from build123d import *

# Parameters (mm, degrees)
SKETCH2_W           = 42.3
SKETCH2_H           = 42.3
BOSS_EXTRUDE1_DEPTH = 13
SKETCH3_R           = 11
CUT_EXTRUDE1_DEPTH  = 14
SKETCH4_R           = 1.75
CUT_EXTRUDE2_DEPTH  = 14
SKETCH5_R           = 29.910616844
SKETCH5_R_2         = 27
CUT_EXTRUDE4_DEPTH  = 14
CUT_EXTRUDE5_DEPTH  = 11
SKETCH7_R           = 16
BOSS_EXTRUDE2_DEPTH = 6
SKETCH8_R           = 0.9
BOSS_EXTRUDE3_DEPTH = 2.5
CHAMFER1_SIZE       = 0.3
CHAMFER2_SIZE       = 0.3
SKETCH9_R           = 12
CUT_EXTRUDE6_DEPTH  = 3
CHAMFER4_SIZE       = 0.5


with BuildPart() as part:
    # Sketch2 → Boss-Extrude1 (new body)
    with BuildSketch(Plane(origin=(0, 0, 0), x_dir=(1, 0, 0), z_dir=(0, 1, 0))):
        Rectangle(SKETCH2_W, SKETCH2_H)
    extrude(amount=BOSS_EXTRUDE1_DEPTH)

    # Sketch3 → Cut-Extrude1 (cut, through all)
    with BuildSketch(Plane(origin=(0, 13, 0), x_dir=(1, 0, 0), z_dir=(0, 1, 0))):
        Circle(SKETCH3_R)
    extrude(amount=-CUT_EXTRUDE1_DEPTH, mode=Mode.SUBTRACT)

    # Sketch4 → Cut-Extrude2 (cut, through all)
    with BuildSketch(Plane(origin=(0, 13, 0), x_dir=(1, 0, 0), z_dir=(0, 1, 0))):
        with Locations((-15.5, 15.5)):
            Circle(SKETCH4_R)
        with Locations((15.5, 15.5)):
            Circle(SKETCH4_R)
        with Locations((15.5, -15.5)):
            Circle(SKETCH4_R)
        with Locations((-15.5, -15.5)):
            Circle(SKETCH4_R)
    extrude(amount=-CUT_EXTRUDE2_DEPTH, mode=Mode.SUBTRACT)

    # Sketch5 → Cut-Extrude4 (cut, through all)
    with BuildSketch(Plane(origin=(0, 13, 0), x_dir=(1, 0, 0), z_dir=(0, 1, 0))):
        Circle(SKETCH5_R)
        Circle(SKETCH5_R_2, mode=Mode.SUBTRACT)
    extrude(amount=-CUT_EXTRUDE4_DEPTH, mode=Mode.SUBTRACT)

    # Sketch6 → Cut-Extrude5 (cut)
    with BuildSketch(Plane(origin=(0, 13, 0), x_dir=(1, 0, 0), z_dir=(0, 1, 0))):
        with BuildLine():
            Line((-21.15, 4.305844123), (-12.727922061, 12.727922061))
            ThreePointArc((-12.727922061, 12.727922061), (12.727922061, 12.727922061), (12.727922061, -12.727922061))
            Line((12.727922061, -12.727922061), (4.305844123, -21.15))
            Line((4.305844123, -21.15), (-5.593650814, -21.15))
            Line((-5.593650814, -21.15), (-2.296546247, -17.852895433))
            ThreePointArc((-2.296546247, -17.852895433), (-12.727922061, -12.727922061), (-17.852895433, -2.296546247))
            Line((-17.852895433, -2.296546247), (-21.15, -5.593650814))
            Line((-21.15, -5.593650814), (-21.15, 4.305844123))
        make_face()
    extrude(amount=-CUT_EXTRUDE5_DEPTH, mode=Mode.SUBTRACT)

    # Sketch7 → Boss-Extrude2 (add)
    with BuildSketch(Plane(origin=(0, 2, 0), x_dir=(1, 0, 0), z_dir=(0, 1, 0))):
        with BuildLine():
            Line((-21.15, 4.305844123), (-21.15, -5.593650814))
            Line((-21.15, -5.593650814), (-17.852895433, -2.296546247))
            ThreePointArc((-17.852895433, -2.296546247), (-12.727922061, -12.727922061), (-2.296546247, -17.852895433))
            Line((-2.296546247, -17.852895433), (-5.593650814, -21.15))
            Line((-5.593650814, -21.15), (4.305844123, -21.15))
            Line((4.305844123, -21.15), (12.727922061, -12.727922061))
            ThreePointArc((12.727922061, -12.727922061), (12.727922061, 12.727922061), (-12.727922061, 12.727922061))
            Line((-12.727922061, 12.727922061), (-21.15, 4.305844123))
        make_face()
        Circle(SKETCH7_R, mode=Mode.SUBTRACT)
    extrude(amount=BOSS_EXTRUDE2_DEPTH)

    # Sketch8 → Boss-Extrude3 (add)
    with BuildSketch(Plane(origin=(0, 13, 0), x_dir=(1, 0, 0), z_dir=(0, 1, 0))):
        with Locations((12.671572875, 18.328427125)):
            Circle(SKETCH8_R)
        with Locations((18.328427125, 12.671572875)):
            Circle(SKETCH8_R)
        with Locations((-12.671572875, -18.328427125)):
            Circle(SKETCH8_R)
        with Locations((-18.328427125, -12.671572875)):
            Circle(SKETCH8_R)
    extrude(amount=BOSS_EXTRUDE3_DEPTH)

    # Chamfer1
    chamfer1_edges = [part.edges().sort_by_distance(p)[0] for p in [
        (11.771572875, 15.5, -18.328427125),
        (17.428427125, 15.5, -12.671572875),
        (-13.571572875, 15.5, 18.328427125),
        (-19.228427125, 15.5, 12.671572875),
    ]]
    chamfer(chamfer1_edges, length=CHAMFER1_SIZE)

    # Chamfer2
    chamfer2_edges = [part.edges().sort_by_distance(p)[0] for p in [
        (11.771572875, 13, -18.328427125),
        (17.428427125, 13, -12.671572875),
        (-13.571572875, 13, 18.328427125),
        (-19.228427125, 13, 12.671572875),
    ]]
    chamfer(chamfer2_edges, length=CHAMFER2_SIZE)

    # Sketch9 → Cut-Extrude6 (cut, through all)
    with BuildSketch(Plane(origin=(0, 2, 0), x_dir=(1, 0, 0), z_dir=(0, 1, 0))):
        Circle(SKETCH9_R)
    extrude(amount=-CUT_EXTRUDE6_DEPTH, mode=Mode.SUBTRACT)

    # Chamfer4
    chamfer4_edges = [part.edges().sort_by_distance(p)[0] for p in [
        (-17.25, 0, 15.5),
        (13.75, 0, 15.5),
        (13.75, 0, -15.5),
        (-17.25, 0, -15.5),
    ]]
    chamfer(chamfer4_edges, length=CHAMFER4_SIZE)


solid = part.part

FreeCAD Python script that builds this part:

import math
import FreeCAD as App
import Part
import Sketcher

V = App.Vector
Q = App.Units.Quantity


def edges_at(feature, points):
    """Names of the edges that pass closest to the given points."""
    edges = feature.Shape.Edges
    near = lambda p: min(range(len(edges)), key=lambda i: edges[i].distToShape(Part.Vertex(*p))[0])
    return sorted({f"Edge{near(p) + 1}" for p in points})

doc = App.newDocument("Part")
body = doc.addObject("PartDesign::Body", "Body")

sketch1 = doc.addObject("Sketcher::SketchObject", "Sketch")
body.addObject(sketch1)
sketch1.AttachmentSupport = (doc.XZ_Plane, [""])
sketch1.MapMode = "FlatFace"
sketch1.addGeometry(Part.LineSegment(V(-21.15, -21.15, 0), V(-21.15, 21.15, 0)), False)
sketch1.addGeometry(Part.LineSegment(V(-21.15, 21.15, 0), V(21.15, 21.15, 0)), False)
sketch1.addGeometry(Part.LineSegment(V(21.15, 21.15, 0), V(21.15, -21.15, 0)), False)
sketch1.addGeometry(Part.LineSegment(V(21.15, -21.15, 0), V(-21.15, -21.15, 0)), False)
sketch1.addConstraint(Sketcher.Constraint("Coincident", 0, 2, 1, 1))
sketch1.addConstraint(Sketcher.Constraint("Coincident", 1, 2, 2, 1))
sketch1.addConstraint(Sketcher.Constraint("Coincident", 2, 2, 3, 1))
sketch1.addConstraint(Sketcher.Constraint("Coincident", 3, 2, 0, 1))
sketch1.addConstraint(Sketcher.Constraint("Vertical", 0))
sketch1.addConstraint(Sketcher.Constraint("Horizontal", 1))
sketch1.addConstraint(Sketcher.Constraint("Vertical", 2))
sketch1.addConstraint(Sketcher.Constraint("Horizontal", 3))
sketch1.addConstraint(Sketcher.Constraint("Symmetric", 0, 2, 2, 2, -1, 1))
sketch1.addConstraint(Sketcher.Constraint("Equal", 3, 0))
sketch1.addConstraint(Sketcher.Constraint("DistanceX", 1, 1, 1, 2, Q("42.3 mm")))
pad1 = doc.addObject("PartDesign::Pad", "Pad")
body.addObject(pad1)
pad1.Profile = sketch1
pad1.Length = 13
pad1.Reversed = True

sketch2 = doc.addObject("Sketcher::SketchObject", "Sketch001")
body.addObject(sketch2)
sketch2.AttachmentSupport = (doc.XZ_Plane, [""])
sketch2.MapMode = "FlatFace"
sketch2.AttachmentOffset = App.Placement(V(0, 0, -13), App.Rotation())
sketch2.addGeometry(Part.Circle(V(0, 0, 0), V(0, 0, 1), 11), False)
sketch2.addConstraint(Sketcher.Constraint("Coincident", 0, 3, -1, 1))
sketch2.addConstraint(Sketcher.Constraint("Diameter", 0, Q("22 mm")))
pocket1 = doc.addObject("PartDesign::Pocket", "Pocket")
body.addObject(pocket1)
pocket1.Profile = sketch2
pocket1.Type = "ThroughAll"
pocket1.Reversed = True

sketch3 = doc.addObject("Sketcher::SketchObject", "Sketch002")
body.addObject(sketch3)
sketch3.AttachmentSupport = (doc.XZ_Plane, [""])
sketch3.MapMode = "FlatFace"
sketch3.AttachmentOffset = App.Placement(V(0, 0, -13), App.Rotation())
sketch3.addGeometry(Part.Circle(V(-15.5, -15.5, 0), V(0, 0, 1), 1.75), False)
sketch3.addGeometry(Part.Circle(V(15.5, -15.5, 0), V(0, 0, 1), 1.75), False)
sketch3.addGeometry(Part.Circle(V(15.5, 15.5, 0), V(0, 0, 1), 1.75), False)
sketch3.addGeometry(Part.Circle(V(-15.5, 15.5, 0), V(0, 0, 1), 1.75), False)
sketch3.addConstraint(Sketcher.Constraint("Equal", 0, 1))
sketch3.addConstraint(Sketcher.Constraint("Equal", 1, 2))
sketch3.addConstraint(Sketcher.Constraint("Equal", 2, 3))
sketch3.addConstraint(Sketcher.Constraint("Symmetric", 0, 3, 2, 3, -1, 1))
sketch3.addConstraint(Sketcher.Constraint("Symmetric", 1, 3, 3, 3, -1, 1))
sketch3.addConstraint(Sketcher.Constraint("Symmetric", 0, 3, 1, 3, -2))
sketch3.addConstraint(Sketcher.Constraint("Diameter", 0, Q("3.5 mm")))
sketch3.addConstraint(Sketcher.Constraint("DistanceX", 0, 3, 1, 3, Q("31 mm")))
sketch3.addConstraint(Sketcher.Constraint("DistanceY", 1, 3, 2, 3, Q("31 mm")))
pocket2 = doc.addObject("PartDesign::Pocket", "Pocket001")
body.addObject(pocket2)
pocket2.Profile = sketch3
pocket2.Type = "ThroughAll"
pocket2.Reversed = True

sketch4 = doc.addObject("Sketcher::SketchObject", "Sketch003")
body.addObject(sketch4)
sketch4.AttachmentSupport = (doc.XZ_Plane, [""])
sketch4.MapMode = "FlatFace"
sketch4.AttachmentOffset = App.Placement(V(0, 0, -13), App.Rotation())
sketch4.addGeometry(Part.Circle(V(0, 0, 0), V(0, 0, 1), 29.910617), False)
sketch4.addGeometry(Part.Circle(V(0, 0, 0), V(0, 0, 1), 27), False)
sketch4.addConstraint(Sketcher.Constraint("Coincident", 0, 3, -1, 1))
sketch4.addConstraint(Sketcher.Constraint("Coincident", 1, 3, -1, 1))
sketch4.addConstraint(Sketcher.Constraint("Diameter", 1, Q("54 mm")))
sketch4.addConstraint(Sketcher.Constraint("Diameter", 0, Q("59.821234 mm")))
pocket3 = doc.addObject("PartDesign::Pocket", "Pocket002")
body.addObject(pocket3)
pocket3.Profile = sketch4
pocket3.Type = "ThroughAll"
pocket3.Reversed = True

sketch5 = doc.addObject("Sketcher::SketchObject", "Sketch004")
body.addObject(sketch5)
sketch5.AttachmentSupport = (doc.XZ_Plane, [""])
sketch5.MapMode = "FlatFace"
sketch5.AttachmentOffset = App.Placement(V(0, 0, -13), App.Rotation())
sketch5.addGeometry(Part.LineSegment(V(-12.727922, -12.727922, 0), V(-21.15, -4.305844, 0)), False)
sketch5.addGeometry(Part.LineSegment(V(-21.15, -4.305844, 0), V(-21.15, 5.593651, 0)), False)
sketch5.addGeometry(Part.LineSegment(V(-21.15, 5.593651, 0), V(-17.852895, 2.296546, 0)), False)
sketch5.addGeometry(Part.ArcOfCircle(Part.Circle(V(0, 0, 0), V(0, 0, 1), 18), math.radians(97.330113), math.radians(172.669887)), False)
sketch5.addGeometry(Part.LineSegment(V(-2.296546, 17.852895, 0), V(-5.593651, 21.15, 0)), False)
sketch5.addGeometry(Part.LineSegment(V(-5.593651, 21.15, 0), V(4.305844, 21.15, 0)), False)
sketch5.addGeometry(Part.LineSegment(V(4.305844, 21.15, 0), V(12.727922, 12.727922, 0)), False)
sketch5.addGeometry(Part.ArcOfCircle(Part.Circle(V(0, 0, 0), V(0, 0, 1), 18), math.radians(-135), math.radians(45)), False)
sketch5.addConstraint(Sketcher.Constraint("Coincident", 0, 2, 1, 1))
sketch5.addConstraint(Sketcher.Constraint("Coincident", 1, 2, 2, 1))
sketch5.addConstraint(Sketcher.Constraint("Coincident", 2, 2, 3, 2))
sketch5.addConstraint(Sketcher.Constraint("Coincident", 3, 1, 4, 1))
sketch5.addConstraint(Sketcher.Constraint("Coincident", 4, 2, 5, 1))
sketch5.addConstraint(Sketcher.Constraint("Coincident", 5, 2, 6, 1))
sketch5.addConstraint(Sketcher.Constraint("Tangent", 6, 2, 7, 2))
sketch5.addConstraint(Sketcher.Constraint("Tangent", 7, 1, 0, 1))
sketch5.addConstraint(Sketcher.Constraint("Vertical", 1))
sketch5.addConstraint(Sketcher.Constraint("Horizontal", 5))
sketch5.addConstraint(Sketcher.Constraint("Coincident", 3, 3, -1, 1))
sketch5.addConstraint(Sketcher.Constraint("Coincident", 7, 3, -1, 1))
sketch5.addConstraint(Sketcher.Constraint("Equal", 3, 7))
sketch5.addConstraint(Sketcher.Constraint("Parallel", 0, 2))
sketch5.addConstraint(Sketcher.Constraint("Parallel", 2, 4))
sketch5.addConstraint(Sketcher.Constraint("Parallel", 4, 6))
sketch5.addConstraint(Sketcher.Constraint("Equal", 5, 1))
sketch5.addConstraint(Sketcher.Constraint("Equal", 2, 4))
sketch5.addConstraint(Sketcher.Constraint("Equal", 0, 6))
sketch5.addConstraint(Sketcher.Constraint("Radius", 3, Q("18 mm")))
sketch5.addConstraint(Sketcher.Constraint("DistanceX", 0, 2, -1, 1, Q("21.15 mm")))
sketch5.addConstraint(Sketcher.Constraint("Distance", 2, Q("4.66281 mm")))
pocket4 = doc.addObject("PartDesign::Pocket", "Pocket003")
body.addObject(pocket4)
pocket4.Profile = sketch5
pocket4.Length = 11
pocket4.Reversed = True

sketch6 = doc.addObject("Sketcher::SketchObject", "Sketch005")
body.addObject(sketch6)
sketch6.AttachmentSupport = (doc.XZ_Plane, [""])
sketch6.MapMode = "FlatFace"
sketch6.AttachmentOffset = App.Placement(V(0, 0, -2), App.Rotation())
sketch6.addGeometry(Part.LineSegment(V(-21.15, -4.305844, 0), V(-21.15, 5.593651, 0)), False)
sketch6.addGeometry(Part.LineSegment(V(-21.15, 5.593651, 0), V(-17.852895, 2.296546, 0)), False)
sketch6.addGeometry(Part.ArcOfCircle(Part.Circle(V(0, 0, 0), V(0, 0, 1), 18), math.radians(97.330113), math.radians(172.669887)), False)
sketch6.addGeometry(Part.LineSegment(V(-2.296546, 17.852895, 0), V(-5.593651, 21.15, 0)), False)
sketch6.addGeometry(Part.LineSegment(V(-5.593651, 21.15, 0), V(4.305844, 21.15, 0)), False)
sketch6.addGeometry(Part.LineSegment(V(4.305844, 21.15, 0), V(12.727922, 12.727922, 0)), False)
sketch6.addGeometry(Part.ArcOfCircle(Part.Circle(V(0, 0, 0), V(0, 0, 1), 18), math.radians(-135), math.radians(45)), False)
sketch6.addGeometry(Part.LineSegment(V(-12.727922, -12.727922, 0), V(-21.15, -4.305844, 0)), False)
sketch6.addGeometry(Part.Circle(V(0, 0, 0), V(0, 0, 1), 16), False)
sketch6.addConstraint(Sketcher.Constraint("Coincident", 0, 2, 1, 1))
sketch6.addConstraint(Sketcher.Constraint("Coincident", 1, 2, 2, 2))
sketch6.addConstraint(Sketcher.Constraint("Coincident", 2, 1, 3, 1))
sketch6.addConstraint(Sketcher.Constraint("Coincident", 3, 2, 4, 1))
sketch6.addConstraint(Sketcher.Constraint("Coincident", 4, 2, 5, 1))
sketch6.addConstraint(Sketcher.Constraint("Tangent", 5, 2, 6, 2))
sketch6.addConstraint(Sketcher.Constraint("Tangent", 6, 1, 7, 1))
sketch6.addConstraint(Sketcher.Constraint("Coincident", 7, 2, 0, 1))
sketch6.addConstraint(Sketcher.Constraint("Vertical", 0))
sketch6.addConstraint(Sketcher.Constraint("Horizontal", 4))
sketch6.addConstraint(Sketcher.Constraint("Coincident", 2, 3, -1, 1))
sketch6.addConstraint(Sketcher.Constraint("Coincident", 6, 3, -1, 1))
sketch6.addConstraint(Sketcher.Constraint("Coincident", 8, 3, -1, 1))
sketch6.addConstraint(Sketcher.Constraint("Equal", 2, 6))
sketch6.addConstraint(Sketcher.Constraint("Parallel", 1, 3))
sketch6.addConstraint(Sketcher.Constraint("Parallel", 3, 5))
sketch6.addConstraint(Sketcher.Constraint("Parallel", 5, 7))
sketch6.addConstraint(Sketcher.Constraint("Equal", 4, 0))
sketch6.addConstraint(Sketcher.Constraint("Equal", 1, 3))
sketch6.addConstraint(Sketcher.Constraint("Equal", 5, 7))
sketch6.addConstraint(Sketcher.Constraint("Diameter", 8, Q("32 mm")))
sketch6.addConstraint(Sketcher.Constraint("Radius", 2, Q("18 mm")))
sketch6.addConstraint(Sketcher.Constraint("DistanceX", 0, 2, -1, 1, Q("21.15 mm")))
sketch6.addConstraint(Sketcher.Constraint("Distance", 1, Q("4.66281 mm")))
pad2 = doc.addObject("PartDesign::Pad", "Pad001")
body.addObject(pad2)
pad2.Profile = sketch6
pad2.Length = 6
pad2.Reversed = True

sketch7 = doc.addObject("Sketcher::SketchObject", "Sketch006")
body.addObject(sketch7)
sketch7.AttachmentSupport = (doc.XZ_Plane, [""])
sketch7.MapMode = "FlatFace"
sketch7.AttachmentOffset = App.Placement(V(0, 0, -13), App.Rotation())
sketch7.addGeometry(Part.Circle(V(12.671573, -18.328427, 0), V(0, 0, 1), 0.9), False)
sketch7.addGeometry(Part.Circle(V(18.328427, -12.671573, 0), V(0, 0, 1), 0.9), False)
sketch7.addGeometry(Part.Circle(V(-12.671573, 18.328427, 0), V(0, 0, 1), 0.9), False)
sketch7.addGeometry(Part.Circle(V(-18.328427, 12.671573, 0), V(0, 0, 1), 0.9), False)
sketch7.addConstraint(Sketcher.Constraint("Equal", 0, 1))
sketch7.addConstraint(Sketcher.Constraint("Equal", 1, 2))
sketch7.addConstraint(Sketcher.Constraint("Equal", 2, 3))
sketch7.addConstraint(Sketcher.Constraint("Symmetric", 0, 3, 2, 3, -1, 1))
sketch7.addConstraint(Sketcher.Constraint("Symmetric", 1, 3, 3, 3, -1, 1))
sketch7.addConstraint(Sketcher.Constraint("Diameter", 0, Q("1.8 mm")))
sketch7.addConstraint(Sketcher.Constraint("DistanceX", 2, 3, 1, 3, Q("31 mm")))
sketch7.addConstraint(Sketcher.Constraint("DistanceY", 1, 3, 2, 3, Q("31 mm")))
sketch7.addConstraint(Sketcher.Constraint("DistanceX", -1, 1, 0, 3, Q("12.671573 mm")))
sketch7.addConstraint(Sketcher.Constraint("DistanceY", 0, 3, -1, 1, Q("18.328427 mm")))
pad3 = doc.addObject("PartDesign::Pad", "Pad002")
body.addObject(pad3)
pad3.Profile = sketch7
pad3.Length = 2.5
pad3.Reversed = True
doc.recompute()

chamfer = doc.addObject("PartDesign::Chamfer", "Chamfer")
body.addObject(chamfer)
chamfer.Base = (pad3, edges_at(pad3, [
    (11.772, 15.5, -18.328),
    (17.428, 15.5, -12.672),
    (-13.572, 15.5, 18.328),
    (-19.228, 15.5, 12.672),
]))
chamfer.Size = 0.3
doc.recompute()

chamfer2 = doc.addObject("PartDesign::Chamfer", "Chamfer001")
body.addObject(chamfer2)
chamfer2.Base = (chamfer, edges_at(chamfer, [
    (11.772, 13, -18.328),
    (17.428, 13, -12.672),
    (-13.572, 13, 18.328),
    (-19.228, 13, 12.672),
]))
chamfer2.Size = 0.3

sketch8 = doc.addObject("Sketcher::SketchObject", "Sketch007")
body.addObject(sketch8)
sketch8.AttachmentSupport = (doc.XZ_Plane, [""])
sketch8.MapMode = "FlatFace"
sketch8.AttachmentOffset = App.Placement(V(0, 0, -2), App.Rotation())
sketch8.addGeometry(Part.Circle(V(0, 0, 0), V(0, 0, 1), 12), False)
sketch8.addConstraint(Sketcher.Constraint("Coincident", 0, 3, -1, 1))
sketch8.addConstraint(Sketcher.Constraint("Diameter", 0, Q("24 mm")))
pocket5 = doc.addObject("PartDesign::Pocket", "Pocket004")
body.addObject(pocket5)
pocket5.Profile = sketch8
pocket5.Type = "ThroughAll"
pocket5.Reversed = True
doc.recompute()

chamfer3 = doc.addObject("PartDesign::Chamfer", "Chamfer002")
body.addObject(chamfer3)
chamfer3.Base = (pocket5, edges_at(pocket5, [
    (-17.25, 0, 15.5),
    (13.75, 0, 15.5),
    (13.75, 0, -15.5),
    (-17.25, 0, -15.5),
]))
chamfer3.Size = 0.5

doc.recompute()
